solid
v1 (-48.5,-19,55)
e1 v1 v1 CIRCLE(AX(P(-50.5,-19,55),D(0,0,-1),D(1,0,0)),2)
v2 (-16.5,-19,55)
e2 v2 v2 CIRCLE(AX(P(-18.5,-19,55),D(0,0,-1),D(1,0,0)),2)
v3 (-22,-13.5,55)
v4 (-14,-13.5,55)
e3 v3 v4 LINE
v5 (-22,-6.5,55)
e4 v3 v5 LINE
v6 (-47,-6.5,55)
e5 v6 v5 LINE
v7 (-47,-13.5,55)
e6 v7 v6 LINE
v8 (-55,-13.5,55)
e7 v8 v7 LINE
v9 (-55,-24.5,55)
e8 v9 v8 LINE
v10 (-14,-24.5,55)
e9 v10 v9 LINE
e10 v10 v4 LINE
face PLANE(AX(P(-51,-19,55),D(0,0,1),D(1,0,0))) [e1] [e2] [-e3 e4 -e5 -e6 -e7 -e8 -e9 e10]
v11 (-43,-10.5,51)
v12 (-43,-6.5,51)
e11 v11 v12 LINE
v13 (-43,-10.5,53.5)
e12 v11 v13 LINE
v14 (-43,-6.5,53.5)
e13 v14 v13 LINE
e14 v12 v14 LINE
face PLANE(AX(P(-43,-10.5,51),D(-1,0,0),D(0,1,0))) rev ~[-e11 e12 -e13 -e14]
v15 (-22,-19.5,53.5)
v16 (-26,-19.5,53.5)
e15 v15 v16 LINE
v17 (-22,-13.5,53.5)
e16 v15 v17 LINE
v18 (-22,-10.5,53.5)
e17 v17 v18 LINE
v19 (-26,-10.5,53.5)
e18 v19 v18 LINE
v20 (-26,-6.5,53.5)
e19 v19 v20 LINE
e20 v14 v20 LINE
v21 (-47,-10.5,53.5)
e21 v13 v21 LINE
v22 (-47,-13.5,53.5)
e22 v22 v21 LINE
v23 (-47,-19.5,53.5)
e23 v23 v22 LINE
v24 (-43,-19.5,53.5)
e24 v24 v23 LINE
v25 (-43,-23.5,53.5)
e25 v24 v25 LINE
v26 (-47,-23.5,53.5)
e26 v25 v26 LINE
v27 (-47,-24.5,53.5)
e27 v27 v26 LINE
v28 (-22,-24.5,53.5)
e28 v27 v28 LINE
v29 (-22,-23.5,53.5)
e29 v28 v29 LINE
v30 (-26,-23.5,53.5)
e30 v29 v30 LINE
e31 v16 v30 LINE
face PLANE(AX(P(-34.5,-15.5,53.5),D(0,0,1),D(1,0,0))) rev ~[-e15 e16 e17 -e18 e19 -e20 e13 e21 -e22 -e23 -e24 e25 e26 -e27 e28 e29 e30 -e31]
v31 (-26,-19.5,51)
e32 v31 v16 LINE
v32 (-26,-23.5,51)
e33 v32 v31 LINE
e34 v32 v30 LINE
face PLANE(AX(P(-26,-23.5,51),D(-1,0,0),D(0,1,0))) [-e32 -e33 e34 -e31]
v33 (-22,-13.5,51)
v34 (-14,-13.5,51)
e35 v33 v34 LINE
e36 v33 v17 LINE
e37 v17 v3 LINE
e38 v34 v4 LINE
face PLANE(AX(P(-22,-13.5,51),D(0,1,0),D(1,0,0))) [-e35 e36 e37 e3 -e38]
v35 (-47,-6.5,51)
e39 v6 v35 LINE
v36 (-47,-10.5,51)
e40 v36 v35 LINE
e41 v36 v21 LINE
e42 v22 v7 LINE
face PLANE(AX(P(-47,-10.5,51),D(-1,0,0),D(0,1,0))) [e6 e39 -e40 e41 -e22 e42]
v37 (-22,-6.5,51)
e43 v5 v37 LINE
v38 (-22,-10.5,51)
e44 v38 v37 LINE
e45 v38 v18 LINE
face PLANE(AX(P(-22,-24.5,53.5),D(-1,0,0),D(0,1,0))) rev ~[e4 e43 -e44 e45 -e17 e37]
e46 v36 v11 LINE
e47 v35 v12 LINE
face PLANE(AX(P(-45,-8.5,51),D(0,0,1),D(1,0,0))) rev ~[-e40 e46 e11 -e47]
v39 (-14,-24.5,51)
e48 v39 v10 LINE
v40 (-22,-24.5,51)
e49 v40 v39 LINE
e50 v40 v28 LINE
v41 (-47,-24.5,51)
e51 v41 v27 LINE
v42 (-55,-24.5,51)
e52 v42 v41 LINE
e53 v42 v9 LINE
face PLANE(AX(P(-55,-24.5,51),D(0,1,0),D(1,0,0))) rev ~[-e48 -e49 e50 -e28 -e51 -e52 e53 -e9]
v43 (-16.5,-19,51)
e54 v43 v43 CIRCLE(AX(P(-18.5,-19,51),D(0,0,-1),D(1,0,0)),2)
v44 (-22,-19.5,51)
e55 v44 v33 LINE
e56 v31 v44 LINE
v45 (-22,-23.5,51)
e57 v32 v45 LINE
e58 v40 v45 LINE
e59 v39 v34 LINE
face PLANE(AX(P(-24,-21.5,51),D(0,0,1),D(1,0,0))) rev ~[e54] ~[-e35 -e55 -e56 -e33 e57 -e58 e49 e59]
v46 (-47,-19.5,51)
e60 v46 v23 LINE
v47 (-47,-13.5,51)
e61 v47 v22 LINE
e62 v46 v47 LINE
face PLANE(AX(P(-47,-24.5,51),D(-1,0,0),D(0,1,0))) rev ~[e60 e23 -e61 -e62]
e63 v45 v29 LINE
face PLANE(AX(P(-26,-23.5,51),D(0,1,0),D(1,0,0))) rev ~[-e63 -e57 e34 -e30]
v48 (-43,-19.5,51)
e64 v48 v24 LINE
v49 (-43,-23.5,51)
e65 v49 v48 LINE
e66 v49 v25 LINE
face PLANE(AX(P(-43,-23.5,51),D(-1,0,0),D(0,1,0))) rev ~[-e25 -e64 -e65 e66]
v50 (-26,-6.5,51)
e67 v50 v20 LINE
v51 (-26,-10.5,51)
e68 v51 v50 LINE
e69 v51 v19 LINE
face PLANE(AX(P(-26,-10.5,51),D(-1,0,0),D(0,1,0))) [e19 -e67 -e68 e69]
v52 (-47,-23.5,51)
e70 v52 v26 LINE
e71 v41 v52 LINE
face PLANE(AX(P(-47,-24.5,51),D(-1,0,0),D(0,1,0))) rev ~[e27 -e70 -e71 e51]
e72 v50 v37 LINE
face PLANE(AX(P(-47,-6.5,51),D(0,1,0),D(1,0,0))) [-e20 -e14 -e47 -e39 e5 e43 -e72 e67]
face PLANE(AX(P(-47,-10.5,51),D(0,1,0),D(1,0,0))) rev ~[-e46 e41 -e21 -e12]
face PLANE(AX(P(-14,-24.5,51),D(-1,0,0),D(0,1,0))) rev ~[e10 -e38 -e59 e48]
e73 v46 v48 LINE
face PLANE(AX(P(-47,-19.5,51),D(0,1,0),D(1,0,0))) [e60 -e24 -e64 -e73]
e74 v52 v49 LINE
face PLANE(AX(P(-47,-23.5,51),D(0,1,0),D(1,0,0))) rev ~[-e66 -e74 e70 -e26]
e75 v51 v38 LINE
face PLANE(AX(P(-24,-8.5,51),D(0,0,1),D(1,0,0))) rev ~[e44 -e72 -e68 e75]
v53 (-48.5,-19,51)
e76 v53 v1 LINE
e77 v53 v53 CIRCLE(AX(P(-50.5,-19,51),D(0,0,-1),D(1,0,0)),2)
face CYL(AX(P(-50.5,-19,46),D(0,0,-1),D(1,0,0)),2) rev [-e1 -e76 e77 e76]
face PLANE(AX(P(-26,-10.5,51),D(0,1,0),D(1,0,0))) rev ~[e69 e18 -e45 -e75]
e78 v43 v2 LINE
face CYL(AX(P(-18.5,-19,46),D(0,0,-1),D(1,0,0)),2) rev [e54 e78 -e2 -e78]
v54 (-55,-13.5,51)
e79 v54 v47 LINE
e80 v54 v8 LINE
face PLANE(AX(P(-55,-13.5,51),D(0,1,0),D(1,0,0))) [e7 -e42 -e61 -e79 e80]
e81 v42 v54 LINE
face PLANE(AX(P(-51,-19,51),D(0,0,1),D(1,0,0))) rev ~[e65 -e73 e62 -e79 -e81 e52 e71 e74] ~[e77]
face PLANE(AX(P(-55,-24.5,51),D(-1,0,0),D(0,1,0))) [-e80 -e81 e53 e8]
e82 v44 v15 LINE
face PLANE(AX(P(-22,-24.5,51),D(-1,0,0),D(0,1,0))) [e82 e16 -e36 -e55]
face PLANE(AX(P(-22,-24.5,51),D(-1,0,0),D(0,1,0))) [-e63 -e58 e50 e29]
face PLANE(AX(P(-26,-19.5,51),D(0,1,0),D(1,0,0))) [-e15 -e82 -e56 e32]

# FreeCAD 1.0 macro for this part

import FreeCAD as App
import Part
import Sketcher
from FreeCAD import Vector
Q = App.Units.Quantity

doc = App.newDocument("Part")
params = doc.addObject("Spreadsheet::Sheet", "Params")
for row, (alias, value) in enumerate([
    ("sketch1_diameter", "4 mm"),
    ("pad1_length", "13 mm"),
    ("sketch2_diameter", "4 mm"),
    ("pad2_length", "13 mm"),
    ("sketch3_width", "4 mm"),
    ("pad3_length", "4 mm"),
    ("sketch4_width", "25 mm"),
    ("sketch4_height", "18 mm"),
    ("pad4_length", "1.5 mm"),
    ("sketch5_width", "4 mm"),
    ("pad5_length", "4 mm"),
    ("sketch6_width", "4 mm"),
    ("pad6_length", "4 mm"),
    ("sketch7_width", "4 mm"),
    ("pad7_length", "4 mm"),
    ("sketch8_width", "8 mm"),
    ("sketch8_height", "11 mm"),
    ("pad8_length", "4 mm"),
    ("sketch9_width", "8 mm"),
    ("sketch9_height", "11 mm"),
    ("pad9_length", "4 mm"),
], start=1):
    params.set(f"A{row}", alias)
    params.set(f"B{row}", "=" + value)
    params.setAlias(f"B{row}", alias)

body = doc.addObject("PartDesign::Body", "Body")

sketch1 = body.newObject("Sketcher::SketchObject", "Sketch")
sketch1.AttachmentSupport = (doc.getObject("XY_Plane"), [""])
sketch1.MapMode = "FlatFace"
sketch1.AttachmentOffset = App.Placement(Vector(0, 0, -5), App.Rotation())
sketch1.addGeometry(Part.Circle(Vector(-48, -69, 0), Vector(0, 0, 1), 2), False)
sketch1.addConstraint([
    Sketcher.Constraint("Diameter", 0, Q("4 mm")),
    Sketcher.Constraint("DistanceX", 0, 3, -1, 1, Q("48 mm")),
    Sketcher.Constraint("DistanceY", 0, 3, -1, 1, Q("69 mm")),
])
sketch1.setExpression("Constraints[0]", "Params.sketch1_diameter")
pad1 = body.newObject("PartDesign::Pad", "Pad")
pad1.Profile = sketch1
pad1.setExpression("Length", "Params.pad1_length")
body2 = doc.addObject("PartDesign::Body", "Body001")
body2.AllowCompound = True

sketch2 = body2.newObject("Sketcher::SketchObject", "Sketch001")
sketch2.AttachmentSupport = (doc.getObject("XY_Plane001"), [""])
sketch2.MapMode = "FlatFace"
sketch2.AttachmentOffset = App.Placement(Vector(0, 0, -5), App.Rotation())
sketch2.addGeometry(Part.Circle(Vector(-16, -69, 0), Vector(0, 0, 1), 2), False)
sketch2.addConstraint([
    Sketcher.Constraint("Diameter", 0, Q("4 mm")),
    Sketcher.Constraint("DistanceX", 0, 3, -1, 1, Q("16 mm")),
    Sketcher.Constraint("DistanceY", 0, 3, -1, 1, Q("69 mm")),
])
sketch2.setExpression("Constraints[0]", "Params.sketch2_diameter")
pad2 = body2.newObject("PartDesign::Pad", "Pad001")
pad2.Profile = sketch2
pad2.setExpression("Length", "Params.pad2_length")
doc.recompute()

boolean = body2.newObject("PartDesign::Boolean", "Boolean")
boolean.Type = "Fuse"
boolean.addObjects([body])
body3 = doc.addObject("PartDesign::Body", "Body002")
body3.AllowCompound = True
doc.recompute()

body2.Placement = App.Placement(Vector(-2.5, 50, 51), App.Rotation(Vector(0, 0, 1), 0))
boolean2 = body3.newObject("PartDesign::Boolean", "Boolean001")
boolean2.Type = "Fuse"
boolean2.addObjects([body2])
body4 = doc.addObject("PartDesign::Body", "Body003")

sketch3 = body4.newObject("Sketcher::SketchObject", "Sketch002")
sketch3.AttachmentSupport = (doc.getObject("XY_Plane003"), [""])
sketch3.MapMode = "FlatFace"
sketch3.AttachmentOffset = App.Placement(Vector(0, 0, 51), App.Rotation())
sketch3.addGeometry([
    Part.LineSegment(Vector(-26, -6.5, 0), Vector(-26, -10.5, 0)),
    Part.LineSegment(Vector(-26, -10.5, 0), Vector(-22, -10.5, 0)),
    Part.LineSegment(Vector(-22, -10.5, 0), Vector(-22, -6.5, 0)),
    Part.LineSegment(Vector(-22, -6.5, 0), Vector(-26, -6.5, 0)),
], False)
sketch3.addConstraint([
    Sketcher.Constraint("Coincident", 0, 2, 1, 1),
    Sketcher.Constraint("Coincident", 1, 2, 2, 1),
    Sketcher.Constraint("Coincident", 2, 2, 3, 1),
    Sketcher.Constraint("Coincident", 3, 2, 0, 1),
    Sketcher.Constraint("Vertical", 0),
    Sketcher.Constraint("Horizontal", 1),
    Sketcher.Constraint("Vertical", 2),
    Sketcher.Constraint("Horizontal", 3),
    Sketcher.Constraint("Equal", 3, 0),
    Sketcher.Constraint("DistanceX", 1, 1, 1, 2, Q("4 mm")),
    Sketcher.Constraint("DistanceX", 0, 2, -1, 1, Q("26 mm")),
    Sketcher.Constraint("DistanceY", 0, 2, -1, 1, Q("10.5 mm")),
])
sketch3.setExpression("Constraints[9]", "Params.sketch3_width")
pad3 = body4.newObject("PartDesign::Pad", "Pad002")
pad3.Profile = sketch3
pad3.setExpression("Length", "Params.pad3_length")
body5 = doc.addObject("PartDesign::Body", "Body004")

sketch4 = body5.newObject("Sketcher::SketchObject", "Sketch003")
sketch4.AttachmentSupport = (doc.getObject("XY_Plane004"), [""])
sketch4.MapMode = "FlatFace"
sketch4.AttachmentOffset = App.Placement(Vector(0, 0, 53.5), App.Rotation())
sketch4.addGeometry([
    Part.LineSegment(Vector(-47, -6.5, 0), Vector(-47, -24.5, 0)),
    Part.LineSegment(Vector(-47, -24.5, 0), Vector(-22, -24.5, 0)),
    Part.LineSegment(Vector(-22, -24.5, 0), Vector(-22, -6.5, 0)),
    Part.LineSegment(Vector(-22, -6.5, 0), Vector(-47, -6.5, 0)),
], False)
sketch4.addConstraint([
    Sketcher.Constraint("Coincident", 0, 2, 1, 1),
    Sketcher.Constraint("Coincident", 1, 2, 2, 1),
    Sketcher.Constraint("Coincident", 2, 2, 3, 1),
    Sketcher.Constraint("Coincident", 3, 2, 0, 1),
    Sketcher.Constraint("Vertical", 0),
    Sketcher.Constraint("Horizontal", 1),
    Sketcher.Constraint("Vertical", 2),
    Sketcher.Constraint("Horizontal", 3),
    Sketcher.Constraint("DistanceX", 1, 1, 1, 2, Q("25 mm")),
    Sketcher.Constraint("DistanceY", 0, 2, 0, 1, Q("18 mm")),
    Sketcher.Constraint("DistanceX", 0, 2, -1, 1, Q("47 mm")),
    Sketcher.Constraint("DistanceY", 0, 2, -1, 1, Q("24.5 mm")),
])
sketch4.setExpression("Constraints[8]", "Params.sketch4_width")
sketch4.setExpression("Constraints[9]", "Params.sketch4_height")
pad4 = body5.newObject("PartDesign::Pad", "Pad003")
pad4.Profile = sketch4
pad4.setExpression("Length", "Params.pad4_length")
body6 = doc.addObject("PartDesign::Body", "Body005")

sketch5 = body6.newObject("Sketcher::SketchObject", "Sketch004")
sketch5.AttachmentSupport = (doc.getObject("XY_Plane005"), [""])
sketch5.MapMode = "FlatFace"
sketch5.AttachmentOffset = App.Placement(Vector(0, 0, 51), App.Rotation())
sketch5.addGeometry([
    Part.LineSegment(Vector(-26, -19.5, 0), Vector(-26, -23.5, 0)),
    Part.LineSegment(Vector(-26, -23.5, 0), Vector(-22, -23.5, 0)),
    Part.LineSegment(Vector(-22, -23.5, 0), Vector(-22, -19.5, 0)),
    Part.LineSegment(Vector(-22, -19.5, 0), Vector(-26, -19.5, 0)),
], False)
sketch5.addConstraint([
    Sketcher.Constraint("Coincident", 0, 2, 1, 1),
    Sketcher.Constraint("Coincident", 1, 2, 2, 1),
    Sketcher.Constraint("Coincident", 2, 2, 3, 1),
    Sketcher.Constraint("Coincident", 3, 2, 0, 1),
    Sketcher.Constraint("Vertical", 0),
    Sketcher.Constraint("Horizontal", 1),
    Sketcher.Constraint("Vertical", 2),
    Sketcher.Constraint("Horizontal", 3),
    Sketcher.Constraint("Equal", 3, 0),
    Sketcher.Constraint("DistanceX", 1, 1, 1, 2, Q("4 mm")),
    Sketcher.Constraint("DistanceX", 0, 2, -1, 1, Q("26 mm")),
    Sketcher.Constraint("DistanceY", 0, 2, -1, 1, Q("23.5 mm")),
])
sketch5.setExpression("Constraints[9]", "Params.sketch5_width")
pad5 = body6.newObject("PartDesign::Pad", "Pad004")
pad5.Profile = sketch5
pad5.setExpression("Length", "Params.pad5_length")
body7 = doc.addObject("PartDesign::Body", "Body006")

sketch6 = body7.newObject("Sketcher::SketchObject", "Sketch005")
sketch6.AttachmentSupport = (doc.getObject("XY_Plane006"), [""])
sketch6.MapMode = "FlatFace"
sketch6.AttachmentOffset = App.Placement(Vector(0, 0, 51), App.Rotation())
sketch6.addGeometry([
    Part.LineSegment(Vector(-47, -19.5, 0), Vector(-47, -23.5, 0)),
    Part.LineSegment(Vector(-47, -23.5, 0), Vector(-43, -23.5, 0)),
    Part.LineSegment(Vector(-43, -23.5, 0), Vector(-43, -19.5, 0)),
    Part.LineSegment(Vector(-43, -19.5, 0), Vector(-47, -19.5, 0)),
], False)
sketch6.addConstraint([
    Sketcher.Constraint("Coincident", 0, 2, 1, 1),
    Sketcher.Constraint("Coincident", 1, 2, 2, 1),
    Sketcher.Constraint("Coincident", 2, 2, 3, 1),
    Sketcher.Constraint("Coincident", 3, 2, 0, 1),
    Sketcher.Constraint("Vertical", 0),
    Sketcher.Constraint("Horizontal", 1),
    Sketcher.Constraint("Vertical", 2),
    Sketcher.Constraint("Horizontal", 3),
    Sketcher.Constraint("Equal", 3, 0),
    Sketcher.Constraint("DistanceX", 1, 1, 1, 2, Q("4 mm")),
    Sketcher.Constraint("DistanceX", 0, 2, -1, 1, Q("47 mm")),
    Sketcher.Constraint("DistanceY", 0, 2, -1, 1, Q("23.5 mm")),
])
sketch6.setExpression("Constraints[9]", "Params.sketch6_width")
pad6 = body7.newObject("PartDesign::Pad", "Pad005")
pad6.Profile = sketch6
pad6.setExpression("Length", "Params.pad6_length")
body8 = doc.addObject("PartDesign::Body", "Body007")

sketch7 = body8.newObject("Sketcher::SketchObject", "Sketch006")
sketch7.AttachmentSupport = (doc.getObject("XY_Plane007"), [""])
sketch7.MapMode = "FlatFace"
sketch7.AttachmentOffset = App.Placement(Vector(0, 0, 51), App.Rotation())
sketch7.addGeometry([
    Part.LineSegment(Vector(-47, -6.5, 0), Vector(-47, -10.5, 0)),
    Part.LineSegment(Vector(-47, -10.5, 0), Vector(-43, -10.5, 0)),
    Part.LineSegment(Vector(-43, -10.5, 0), Vector(-43, -6.5, 0)),
    Part.LineSegment(Vector(-43, -6.5, 0), Vector(-47, -6.5, 0)),
], False)
sketch7.addConstraint([
    Sketcher.Constraint("Coincident", 0, 2, 1, 1),
    Sketcher.Constraint("Coincident", 1, 2, 2, 1),
    Sketcher.Constraint("Coincident", 2, 2, 3, 1),
    Sketcher.Constraint("Coincident", 3, 2, 0, 1),
    Sketcher.Constraint("Vertical", 0),
    Sketcher.Constraint("Horizontal", 1),
    Sketcher.Constraint("Vertical", 2),
    Sketcher.Constraint("Horizontal", 3),
    Sketcher.Constraint("Equal", 3, 0),
    Sketcher.Constraint("DistanceX", 1, 1, 1, 2, Q("4 mm")),
    Sketcher.Constraint("DistanceX", 0, 2, -1, 1, Q("47 mm")),
    Sketcher.Constraint("DistanceY", 0, 2, -1, 1, Q("10.5 mm")),
])
sketch7.setExpression("Constraints[9]", "Params.sketch7_width")
pad7 = body8.newObject("PartDesign::Pad", "Pad006")
pad7.Profile = sketch7
pad7.setExpression("Length", "Params.pad7_length")
body9 = doc.addObject("PartDesign::Body", "Body008")

sketch8 = body9.newObject("Sketcher::SketchObject", "Sketch007")
sketch8.AttachmentSupport = (doc.getObject("XY_Plane008"), [""])
sketch8.MapMode = "FlatFace"
sketch8.AttachmentOffset = App.Placement(Vector(0, 0, 51), App.Rotation())
sketch8.addGeometry([
    Part.LineSegment(Vector(-55, -13.5, 0), Vector(-55, -24.5, 0)),
    Part.LineSegment(Vector(-55, -24.5, 0), Vector(-47, -24.5, 0)),
    Part.LineSegment(Vector(-47, -24.5, 0), Vector(-47, -13.5, 0)),
    Part.LineSegment(Vector(-47, -13.5, 0), Vector(-55, -13.5, 0)),
], False)
sketch8.addConstraint([
    Sketcher.Constraint("Coincident", 0, 2, 1, 1),
    Sketcher.Constraint("Coincident", 1, 2, 2, 1),
    Sketcher.Constraint("Coincident", 2, 2, 3, 1),
    Sketcher.Constraint("Coincident", 3, 2, 0, 1),
    Sketcher.Constraint("Vertical", 0),
    Sketcher.Constraint("Horizontal", 1),
    Sketcher.Constraint("Vertical", 2),
    Sketcher.Constraint("Horizontal", 3),
    Sketcher.Constraint("DistanceX", 1, 1, 1, 2, Q("8 mm")),
    Sketcher.Constraint("DistanceY", 0, 2, 0, 1, Q("11 mm")),
    Sketcher.Constraint("DistanceX", 0, 2, -1, 1, Q("55 mm")),
    Sketcher.Constraint("DistanceY", 0, 2, -1, 1, Q("24.5 mm")),
])
sketch8.setExpression("Constraints[8]", "Params.sketch8_width")
sketch8.setExpression("Constraints[9]", "Params.sketch8_height")
pad8 = body9.newObject("PartDesign::Pad", "Pad007")
pad8.Profile = sketch8
pad8.setExpression("Length", "Params.pad8_length")
body10 = doc.addObject("PartDesign::Body", "Body009")
body10.AllowCompound = True

sketch9 = body10.newObject("Sketcher::SketchObject", "Sketch008")
sketch9.AttachmentSupport = (doc.getObject("XY_Plane009"), [""])
sketch9.MapMode = "FlatFace"
sketch9.AttachmentOffset = App.Placement(Vector(0, 0, 51), App.Rotation())
sketch9.addGeometry([
    Part.LineSegment(Vector(-22, -13.5, 0), Vector(-22, -24.5, 0)),
    Part.LineSegment(Vector(-22, -24.5, 0), Vector(-14, -24.5, 0)),
    Part.LineSegment(Vector(-14, -24.5, 0), Vector(-14, -13.5, 0)),
    Part.LineSegment(Vector(-14, -13.5, 0), Vector(-22, -13.5, 0)),
], False)
sketch9.addConstraint([
    Sketcher.Constraint("Coincident", 0, 2, 1, 1),
    Sketcher.Constraint("Coincident", 1, 2, 2, 1),
    Sketcher.Constraint("Coincident", 2, 2, 3, 1),
    Sketcher.Constraint("Coincident", 3, 2, 0, 1),
    Sketcher.Constraint("Vertical", 0),
    Sketcher.Constraint("Horizontal", 1),
    Sketcher.Constraint("Vertical", 2),
    Sketcher.Constraint("Horizontal", 3),
    Sketcher.Constraint("DistanceX", 1, 1, 1, 2, Q("8 mm")),
    Sketcher.Constraint("DistanceY", 0, 2, 0, 1, Q("11 mm")),
    Sketcher.Constraint("DistanceX", 0, 2, -1, 1, Q("22 mm")),
    Sketcher.Constraint("DistanceY", 0, 2, -1, 1, Q("24.5 mm")),
])
sketch9.setExpression("Constraints[8]", "Params.sketch9_width")
sketch9.setExpression("Constraints[9]", "Params.sketch9_height")
pad9 = body10.newObject("PartDesign::Pad", "Pad008")
pad9.Profile = sketch9
pad9.setExpression("Length", "Params.pad9_length")
doc.recompute()

boolean3 = body10.newObject("PartDesign::Boolean", "Boolean002")
boolean3.Type = "Fuse"
boolean3.addObjects([body4])
doc.recompute()

boolean4 = body10.newObject("PartDesign::Boolean", "Boolean003")
boolean4.Type = "Fuse"
boolean4.addObjects([body5])
doc.recompute()

boolean5 = body10.newObject("PartDesign::Boolean", "Boolean004")
boolean5.Type = "Fuse"
boolean5.addObjects([body6])
doc.recompute()

boolean6 = body10.newObject("PartDesign::Boolean", "Boolean005")
boolean6.Type = "Fuse"
boolean6.addObjects([body7])
doc.recompute()

boolean7 = body10.newObject("PartDesign::Boolean", "Boolean006")
boolean7.Type = "Fuse"
boolean7.addObjects([body8])
doc.recompute()

boolean8 = body10.newObject("PartDesign::Boolean", "Boolean007")
boolean8.Type = "Fuse"
boolean8.addObjects([body9])
doc.recompute()

boolean9 = body10.newObject("PartDesign::Boolean", "Boolean008")
boolean9.Type = "Cut"
boolean9.addObjects([body3])

doc.recompute()
